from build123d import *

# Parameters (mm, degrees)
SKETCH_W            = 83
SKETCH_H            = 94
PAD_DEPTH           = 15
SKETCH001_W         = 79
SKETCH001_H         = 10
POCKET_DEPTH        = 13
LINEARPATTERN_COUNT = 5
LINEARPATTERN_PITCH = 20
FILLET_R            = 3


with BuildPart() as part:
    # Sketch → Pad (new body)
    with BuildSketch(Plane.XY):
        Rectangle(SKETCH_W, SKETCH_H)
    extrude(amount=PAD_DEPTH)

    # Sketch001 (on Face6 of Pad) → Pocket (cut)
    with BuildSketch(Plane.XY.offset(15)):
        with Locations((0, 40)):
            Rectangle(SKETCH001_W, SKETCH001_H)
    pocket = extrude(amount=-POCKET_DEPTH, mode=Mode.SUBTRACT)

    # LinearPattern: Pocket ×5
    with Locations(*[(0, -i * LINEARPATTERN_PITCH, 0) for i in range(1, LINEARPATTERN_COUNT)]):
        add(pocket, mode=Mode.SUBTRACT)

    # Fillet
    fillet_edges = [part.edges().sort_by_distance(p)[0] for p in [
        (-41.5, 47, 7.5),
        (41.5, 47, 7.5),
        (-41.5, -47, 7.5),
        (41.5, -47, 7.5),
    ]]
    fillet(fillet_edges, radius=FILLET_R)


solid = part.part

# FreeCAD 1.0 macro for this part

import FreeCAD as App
import Part
import Sketcher
from FreeCAD import Vector


def edges_at(feature, points):
    """Names of the edges that pass closest to the given points."""
    edges = feature.Shape.Edges
    near = lambda p: min(range(len(edges)), key=lambda i: edges[i].distToShape(Part.Vertex(*p))[0])
    return sorted({f"Edge{near(p) + 1}" for p in points})


def add_polygon(sketch, points):
    """Adds a closed chain of lines whose ends are joined by coincident constraints."""
    first, n = sketch.GeometryCount, len(points)
    for a, b in zip(points, points[1:] + points[:1]):
        sketch.addGeometry(Part.LineSegment(App.Vector(*a, 0), App.Vector(*b, 0)), False)
    for i in range(n):
        sketch.addConstraint(Sketcher.Constraint("Coincident", first + i, 2, first + (i + 1) % n, 1))

doc = App.newDocument("Part")
body = doc.addObject("PartDesign::Body", "Body")

sketch1 = body.newObject("Sketcher::SketchObject", "Sketch")
sketch1.AttachmentSupport = (doc.getObject("XY_Plane"), [""])
sketch1.MapMode = "FlatFace"
add_polygon(sketch1, [(-42, 47), (-42, -47), (42, -47), (42, 47)])
sketch1.addConstraint([
    Sketcher.Constraint("Vertical", 0),
    Sketcher.Constraint("Horizontal", 1),
    Sketcher.Constraint("Vertical", 2),
    Sketcher.Constraint("Horizontal", 3),
    Sketcher.Constraint("Symmetric", 0, 2, 2, 2, -1, 1),
    Sketcher.Constraint("DistanceX", 1, 1, 1, 2, 83.0),
    Sketcher.Constraint("DistanceY", 0, 2, 0, 1, 94.0),
])
pad1 = body.newObject("PartDesign::Pad", "Pad")
pad1.Profile = sketch1
pad1.Length = 15

sketch2 = body.newObject("Sketcher::SketchObject", "Sketch001")
sketch2.AttachmentSupport = (doc.getObject("XY_Plane"), [""])
sketch2.MapMode = "FlatFace"
sketch2.AttachmentOffset = App.Placement(Vector(0, 0, 15), App.Rotation())
add_polygon(sketch2, [(-40, 45), (-40, 35), (40, 35), (40, 45)])
sketch2.addConstraint([
    Sketcher.Constraint("Vertical", 0),
    Sketcher.Constraint("Horizontal", 1),
    Sketcher.Constraint("Vertical", 2),
    Sketcher.Constraint("Horizontal", 3),
    Sketcher.Constraint("DistanceX", 1, 1, 1, 2, 79.0),
    Sketcher.Constraint("DistanceY", 0, 2, 0, 1, 10.0),
    Sketcher.Constraint("DistanceY", -1, 1, 0, 2, 35.0),
    Sketcher.Constraint("DistanceX", 0, 2, -1, 1, 39.5),
])
pocket1 = body.newObject("PartDesign::Pocket", "Pocket")
pocket1.Profile = sketch2
pocket1.Length = 13
doc.recompute()

linearpattern = body.newObject("PartDesign::LinearPattern", "LinearPattern")
linearpattern.Originals = [pocket1]
linearpattern.Direction = (doc.getObject("Y_Axis"), [""])
linearpattern.Mode = "offset"
linearpattern.Offset = 20
linearpattern.Occurrences = 5
linearpattern.Reversed = True
body.Tip = linearpattern
doc.recompute()

fillet = body.newObject("PartDesign::Fillet", "Fillet")
fillet.Base = (linearpattern, edges_at(linearpattern, [
    (-41.5, 47, 7.5),
    (41.5, 47, 7.5),
    (-41.5, -47, 7.5),
    (41.5, -47, 7.5),
]))
fillet.Radius = 3

doc.recompute()
